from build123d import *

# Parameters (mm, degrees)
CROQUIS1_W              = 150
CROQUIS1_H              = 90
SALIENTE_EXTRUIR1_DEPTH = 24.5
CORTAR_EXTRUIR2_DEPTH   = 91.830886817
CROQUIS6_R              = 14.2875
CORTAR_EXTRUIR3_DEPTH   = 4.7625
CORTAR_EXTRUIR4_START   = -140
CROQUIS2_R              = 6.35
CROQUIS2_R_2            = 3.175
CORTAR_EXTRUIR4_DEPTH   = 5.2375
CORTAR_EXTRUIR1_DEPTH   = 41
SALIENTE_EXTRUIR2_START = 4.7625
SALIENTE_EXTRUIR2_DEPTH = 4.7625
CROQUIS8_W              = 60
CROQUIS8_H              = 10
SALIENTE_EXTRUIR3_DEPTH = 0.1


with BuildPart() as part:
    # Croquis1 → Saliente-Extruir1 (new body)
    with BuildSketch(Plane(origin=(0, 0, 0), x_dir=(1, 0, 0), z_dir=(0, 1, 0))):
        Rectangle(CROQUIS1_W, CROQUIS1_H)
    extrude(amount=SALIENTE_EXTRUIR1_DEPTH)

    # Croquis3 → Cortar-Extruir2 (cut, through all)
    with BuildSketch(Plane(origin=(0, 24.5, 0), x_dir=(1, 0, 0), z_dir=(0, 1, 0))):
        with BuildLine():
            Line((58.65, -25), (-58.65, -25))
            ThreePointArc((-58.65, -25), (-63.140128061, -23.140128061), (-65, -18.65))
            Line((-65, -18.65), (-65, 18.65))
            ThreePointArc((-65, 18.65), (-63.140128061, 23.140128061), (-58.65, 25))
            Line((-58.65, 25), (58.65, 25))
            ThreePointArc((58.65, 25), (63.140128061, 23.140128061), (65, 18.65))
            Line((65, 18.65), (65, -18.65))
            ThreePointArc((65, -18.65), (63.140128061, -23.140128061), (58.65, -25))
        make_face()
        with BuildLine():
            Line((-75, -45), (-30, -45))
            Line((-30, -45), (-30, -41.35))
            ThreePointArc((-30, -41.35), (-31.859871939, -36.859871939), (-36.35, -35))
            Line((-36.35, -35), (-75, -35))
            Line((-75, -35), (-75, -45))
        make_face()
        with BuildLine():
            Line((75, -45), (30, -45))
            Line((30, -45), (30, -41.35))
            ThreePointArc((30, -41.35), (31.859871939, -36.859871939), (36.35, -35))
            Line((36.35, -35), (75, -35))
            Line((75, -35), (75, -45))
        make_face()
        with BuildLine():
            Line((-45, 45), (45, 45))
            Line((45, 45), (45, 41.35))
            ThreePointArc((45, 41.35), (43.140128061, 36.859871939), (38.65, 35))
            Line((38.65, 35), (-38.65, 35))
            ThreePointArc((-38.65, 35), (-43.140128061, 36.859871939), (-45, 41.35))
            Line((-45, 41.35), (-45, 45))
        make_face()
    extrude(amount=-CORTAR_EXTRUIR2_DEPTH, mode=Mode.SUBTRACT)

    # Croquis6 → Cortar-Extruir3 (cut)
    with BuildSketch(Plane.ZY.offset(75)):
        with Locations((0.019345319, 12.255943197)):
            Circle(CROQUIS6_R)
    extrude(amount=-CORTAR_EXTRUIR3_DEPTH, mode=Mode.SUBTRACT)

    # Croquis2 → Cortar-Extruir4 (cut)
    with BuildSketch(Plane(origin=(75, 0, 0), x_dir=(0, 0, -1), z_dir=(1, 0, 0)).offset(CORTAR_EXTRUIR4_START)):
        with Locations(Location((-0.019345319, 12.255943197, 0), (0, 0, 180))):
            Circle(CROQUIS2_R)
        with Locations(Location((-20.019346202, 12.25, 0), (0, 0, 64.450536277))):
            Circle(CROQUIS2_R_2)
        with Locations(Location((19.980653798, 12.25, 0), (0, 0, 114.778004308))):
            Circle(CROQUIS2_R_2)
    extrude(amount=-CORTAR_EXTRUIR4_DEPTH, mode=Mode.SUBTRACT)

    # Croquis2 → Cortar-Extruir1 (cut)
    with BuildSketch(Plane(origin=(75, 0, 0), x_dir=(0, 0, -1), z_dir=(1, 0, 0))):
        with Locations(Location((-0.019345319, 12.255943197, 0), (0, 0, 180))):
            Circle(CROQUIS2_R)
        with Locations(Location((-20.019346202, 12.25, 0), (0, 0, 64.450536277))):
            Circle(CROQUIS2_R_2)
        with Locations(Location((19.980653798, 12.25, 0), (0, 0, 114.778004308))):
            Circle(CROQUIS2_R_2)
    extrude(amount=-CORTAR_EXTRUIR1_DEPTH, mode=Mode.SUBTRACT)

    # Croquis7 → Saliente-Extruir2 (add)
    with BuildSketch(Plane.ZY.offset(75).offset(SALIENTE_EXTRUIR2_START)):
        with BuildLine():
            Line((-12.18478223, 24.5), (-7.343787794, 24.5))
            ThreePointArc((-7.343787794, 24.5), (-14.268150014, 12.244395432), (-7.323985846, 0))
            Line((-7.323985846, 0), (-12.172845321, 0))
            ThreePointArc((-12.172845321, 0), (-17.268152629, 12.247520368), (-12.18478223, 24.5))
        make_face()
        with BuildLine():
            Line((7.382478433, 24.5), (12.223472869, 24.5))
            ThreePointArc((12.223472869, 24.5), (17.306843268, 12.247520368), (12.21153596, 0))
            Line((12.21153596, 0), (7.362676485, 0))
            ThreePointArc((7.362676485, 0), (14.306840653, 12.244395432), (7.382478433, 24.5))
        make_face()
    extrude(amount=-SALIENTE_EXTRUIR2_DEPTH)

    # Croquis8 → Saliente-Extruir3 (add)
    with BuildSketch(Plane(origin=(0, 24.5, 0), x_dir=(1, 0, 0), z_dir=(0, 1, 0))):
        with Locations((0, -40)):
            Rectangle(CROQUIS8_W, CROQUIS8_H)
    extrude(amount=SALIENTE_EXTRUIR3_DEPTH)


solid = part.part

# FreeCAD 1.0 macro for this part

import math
import FreeCAD as App
import Part
import Sketcher
from FreeCAD import Vector
Q = App.Units.Quantity

doc = App.newDocument("Part")
body = doc.addObject("PartDesign::Body", "Body")

# Sketch on XZ plane
sketch1 = doc.addObject("Sketcher::SketchObject", "Sketch")
body.addObject(sketch1)
sketch1.AttachmentSupport = (doc.XZ_Plane, [""])
sketch1.MapMode = "FlatFace"
sketch1.addGeometry(Part.LineSegment(Vector(-75, -45, 0), Vector(-75, 45, 0)), False)
sketch1.addGeometry(Part.LineSegment(Vector(-75, 45, 0), Vector(75, 45, 0)), False)
sketch1.addGeometry(Part.LineSegment(Vector(75, 45, 0), Vector(75, -45, 0)), False)
sketch1.addGeometry(Part.LineSegment(Vector(75, -45, 0), Vector(-75, -45, 0)), False)
sketch1.addConstraint(Sketcher.Constraint("Coincident", 0, 2, 1, 1))
sketch1.addConstraint(Sketcher.Constraint("Coincident", 1, 2, 2, 1))
sketch1.addConstraint(Sketcher.Constraint("Coincident", 2, 2, 3, 1))
sketch1.addConstraint(Sketcher.Constraint("Coincident", 3, 2, 0, 1))
sketch1.addConstraint(Sketcher.Constraint("Vertical", 0))
sketch1.addConstraint(Sketcher.Constraint("Horizontal", 1))
sketch1.addConstraint(Sketcher.Constraint("Vertical", 2))
sketch1.addConstraint(Sketcher.Constraint("Horizontal", 3))
sketch1.addConstraint(Sketcher.Constraint("Symmetric", 0, 2, 2, 2, -1, 1))
sketch1.addConstraint(Sketcher.Constraint("DistanceX", 1, 1, 1, 2, Q("150 mm")))
sketch1.addConstraint(Sketcher.Constraint("DistanceY", 0, 1, 0, 2, Q("90 mm")))
pad1 = doc.addObject("PartDesign::Pad", "Pad")
body.addObject(pad1)
pad1.Profile = sketch1
pad1.Length = 24.5
pad1.Reversed = True

# Sketch on XZ plane
sketch2 = doc.addObject("Sketcher::SketchObject", "Sketch001")
body.addObject(sketch2)
sketch2.AttachmentSupport = (doc.XZ_Plane, [""])
sketch2.MapMode = "FlatFace"
sketch2.AttachmentOffset = App.Placement(Vector(0, 0, -24.5), App.Rotation())
sketch2.addGeometry(Part.LineSegment(Vector(-58.6, 25, 0), Vector(58.6, 25, 0)), False)
sketch2.addGeometry(Part.ArcOfCircle(Part.Circle(Vector(58.7, 18.7, 0), Vector(0, 0, 1), 6.3), math.radians(0), math.radians(90)), False)
sketch2.addGeometry(Part.LineSegment(Vector(65, 18.6, 0), Vector(65, -18.6, 0)), False)
sketch2.addGeometry(Part.ArcOfCircle(Part.Circle(Vector(58.7, -18.7, 0), Vector(0, 0, 1), 6.3), math.radians(-90), math.radians(0)), False)
sketch2.addGeometry(Part.LineSegment(Vector(58.6, -25, 0), Vector(-58.6, -25, 0)), False)
sketch2.addGeometry(Part.ArcOfCircle(Part.Circle(Vector(-58.7, -18.7, 0), Vector(0, 0, 1), 6.3), math.radians(180), math.radians(270)), False)
sketch2.addGeometry(Part.LineSegment(Vector(-65, -18.6, 0), Vector(-65, 18.6, 0)), False)
sketch2.addGeometry(Part.ArcOfCircle(Part.Circle(Vector(-58.7, 18.7, 0), Vector(0, 0, 1), 6.3), math.radians(90), math.radians(180)), False)
sketch2.addGeometry(Part.LineSegment(Vector(-75, 45, 0), Vector(-30, 45, 0)), False)
sketch2.addGeometry(Part.LineSegment(Vector(-30, 45, 0), Vector(-30, 41.4, 0)), False)
sketch2.addGeometry(Part.ArcOfCircle(Part.Circle(Vector(-36.3, 41.3, 0), Vector(0, 0, 1), 6.3), math.radians(-90), math.radians(0)), False)
sketch2.addGeometry(Part.LineSegment(Vector(-36.4, 35, 0), Vector(-75, 35, 0)), False)
sketch2.addGeometry(Part.LineSegment(Vector(-75, 35, 0), Vector(-75, 45, 0)), False)
sketch2.addGeometry(Part.LineSegment(Vector(30, 45, 0), Vector(75, 45, 0)), False)
sketch2.addGeometry(Part.LineSegment(Vector(75, 45, 0), Vector(75, 35, 0)), False)
sketch2.addGeometry(Part.LineSegment(Vector(75, 35, 0), Vector(36.4, 35, 0)), False)
sketch2.addGeometry(Part.ArcOfCircle(Part.Circle(Vector(36.3, 41.3, 0), Vector(0, 0, 1), 6.3), math.radians(180), math.radians(270)), False)
sketch2.addGeometry(Part.LineSegment(Vector(30, 41.4, 0), Vector(30, 45, 0)), False)
sketch2.addGeometry(Part.LineSegment(Vector(45, -45, 0), Vector(-45, -45, 0)), False)
sketch2.addGeometry(Part.LineSegment(Vector(-45, -45, 0), Vector(-45, -41.4, 0)), False)
sketch2.addGeometry(Part.ArcOfCircle(Part.Circle(Vector(-38.7, -41.3, 0), Vector(0, 0, 1), 6.3), math.radians(90), math.radians(180)), False)
sketch2.addGeometry(Part.LineSegment(Vector(-38.6, -35, 0), Vector(38.6, -35, 0)), False)
sketch2.addGeometry(Part.ArcOfCircle(Part.Circle(Vector(38.7, -41.3, 0), Vector(0, 0, 1), 6.3), math.radians(0), math.radians(90)), False)
sketch2.addGeometry(Part.LineSegment(Vector(45, -41.4, 0), Vector(45, -45, 0)), False)
sketch2.addConstraint(Sketcher.Constraint("Tangent", 0, 2, 1, 2))
sketch2.addConstraint(Sketcher.Constraint("Tangent", 1, 1, 2, 1))
sketch2.addConstraint(Sketcher.Constraint("Tangent", 2, 2, 3, 2))
sketch2.addConstraint(Sketcher.Constraint("Tangent", 3, 1, 4, 1))
sketch2.addConstraint(Sketcher.Constraint("Tangent", 4, 2, 5, 2))
sketch2.addConstraint(Sketcher.Constraint("Tangent", 5, 1, 6, 1))
sketch2.addConstraint(Sketcher.Constraint("Tangent", 6, 2, 7, 2))
sketch2.addConstraint(Sketcher.Constraint("Tangent", 7, 1, 0, 1))
sketch2.addConstraint(Sketcher.Constraint("Coincident", 8, 2, 9, 1))
sketch2.addConstraint(Sketcher.Constraint("Tangent", 9, 2, 10, 2))
sketch2.addConstraint(Sketcher.Constraint("Tangent", 10, 1, 11, 1))
sketch2.addConstraint(Sketcher.Constraint("Coincident", 11, 2, 12, 1))
sketch2.addConstraint(Sketcher.Constraint("Coincident", 12, 2, 8, 1))
sketch2.addConstraint(Sketcher.Constraint("Coincident", 13, 2, 14, 1))
sketch2.addConstraint(Sketcher.Constraint("Coincident", 14, 2, 15, 1))
sketch2.addConstraint(Sketcher.Constraint("Tangent", 15, 2, 16, 2))
sketch2.addConstraint(Sketcher.Constraint("Tangent", 16, 1, 17, 1))
sketch2.addConstraint(Sketcher.Constraint("Coincident", 17, 2, 13, 1))
sketch2.addConstraint(Sketcher.Constraint("Coincident", 18, 2, 19, 1))
sketch2.addConstraint(Sketcher.Constraint("Tangent", 19, 2, 20, 2))
sketch2.addConstraint(Sketcher.Constraint("Tangent", 20, 1, 21, 1))
sketch2.addConstraint(Sketcher.Constraint("Tangent", 21, 2, 22, 2))
sketch2.addConstraint(Sketcher.Constraint("Tangent", 22, 1, 23, 1))
sketch2.addConstraint(Sketcher.Constraint("Coincident", 23, 2, 18, 1))
sketch2.addConstraint(Sketcher.Constraint("Horizontal", 0))
sketch2.addConstraint(Sketcher.Constraint("Vertical", 2))
sketch2.addConstraint(Sketcher.Constraint("Horizontal", 4))
sketch2.addConstraint(Sketcher.Constraint("Vertical", 6))
sketch2.addConstraint(Sketcher.Constraint("Horizontal", 8))
sketch2.addConstraint(Sketcher.Constraint("Vertical", 9))
sketch2.addConstraint(Sketcher.Constraint("Horizontal", 11))
sketch2.addConstraint(Sketcher.Constraint("Vertical", 12))
sketch2.addConstraint(Sketcher.Constraint("Horizontal", 13))
sketch2.addConstraint(Sketcher.Constraint("Vertical", 14))
sketch2.addConstraint(Sketcher.Constraint("Horizontal", 15))
sketch2.addConstraint(Sketcher.Constraint("Vertical", 17))
sketch2.addConstraint(Sketcher.Constraint("Horizontal", 18))
sketch2.addConstraint(Sketcher.Constraint("Vertical", 19))
sketch2.addConstraint(Sketcher.Constraint("Horizontal", 21))
sketch2.addConstraint(Sketcher.Constraint("Vertical", 23))
sketch2.addConstraint(Sketcher.Constraint("Equal", 1, 3))
sketch2.addConstraint(Sketcher.Constraint("Equal", 3, 5))
sketch2.addConstraint(Sketcher.Constraint("Equal", 5, 7))
sketch2.addConstraint(Sketcher.Constraint("Equal", 7, 10))
sketch2.addConstraint(Sketcher.Constraint("Equal", 10, 16))
sketch2.addConstraint(Sketcher.Constraint("Equal", 16, 20))
sketch2.addConstraint(Sketcher.Constraint("Equal", 20, 22))
sketch2.addConstraint(Sketcher.Constraint("Symmetric", 1, 3, 5, 3, -1, 1))
sketch2.addConstraint(Sketcher.Constraint("Symmetric", 10, 3, 16, 3, -2))
sketch2.addConstraint(Sketcher.Constraint("Symmetric", 12, 2, 13, 2, -2))
sketch2.addConstraint(Sketcher.Constraint("Equal", 17, 19))
sketch2.addConstraint(Sketcher.Constraint("DistanceX", 8, 1, 8, 2, Q("45 mm")))
sketch2.addConstraint(Sketcher.Constraint("DistanceX", 18, 2, 18, 1, Q("90 mm")))
sketch2.addConstraint(Sketcher.Constraint("DistanceY", 12, 1, 12, 2, Q("10 mm")))
sketch2.addConstraint(Sketcher.Constraint("Radius", 1, Q("6.35 mm")))
sketch2.addConstraint(Sketcher.Constraint("DistanceX", 0, 1, 0, 2, Q("117.3 mm")))
sketch2.addConstraint(Sketcher.Constraint("DistanceY", 2, 2, 2, 1, Q("37.3 mm")))
sketch2.addConstraint(Sketcher.Constraint("DistanceX", 8, 2, -1, 1, Q("30 mm")))
sketch2.addConstraint(Sketcher.Constraint("DistanceY", -1, 1, 8, 2, Q("45 mm")))
sketch2.addConstraint(Sketcher.Constraint("DistanceX", 18, 2, -1, 1, Q("45 mm")))
sketch2.addConstraint(Sketcher.Constraint("DistanceY", 18, 2, -1, 1, Q("45 mm")))
pocket1 = doc.addObject("PartDesign::Pocket", "Pocket")
body.addObject(pocket1)
pocket1.Profile = sketch2
pocket1.Type = "ThroughAll"
pocket1.Reversed = True

# Sketch on YZ plane
sketch3 = doc.addObject("Sketcher::SketchObject", "Sketch002")
body.addObject(sketch3)
sketch3.AttachmentSupport = (doc.YZ_Plane, [""])
sketch3.MapMode = "FlatFace"
sketch3.AttachmentOffset = App.Placement(Vector(0, 0, -75), App.Rotation())
sketch3.addGeometry(Part.Circle(Vector(12, 0, 0), Vector(0, 0, 1), 14), False)
sketch3.addConstraint(Sketcher.Constraint("Diameter", 0, Q("28.575 mm")))
sketch3.addConstraint(Sketcher.Constraint("DistanceX", -1, 1, 0, 3, Q("12.255943 mm")))
sketch3.addConstraint(Sketcher.Constraint("DistanceY", -1, 1, 0, 3, Q("0.019345 mm")))
pocket2 = doc.addObject("PartDesign::Pocket", "Pocket001")
body.addObject(pocket2)
pocket2.Profile = sketch3
pocket2.Length = 4.7625
pocket2.Reversed = True

# Sketch on YZ plane
sketch4 = doc.addObject("Sketcher::SketchObject", "Sketch003")
body.addObject(sketch4)
sketch4.AttachmentSupport = (doc.YZ_Plane, [""])
sketch4.MapMode = "FlatFace"
sketch4.AttachmentOffset = App.Placement(Vector(0, 0, -65), App.Rotation())
sketch4.addGeometry(Part.Circle(Vector(12.3, 0, 0), Vector(0, 0, 1), 6.3), False)
sketch4.addGeometry(Part.Circle(Vector(12.2, 20, 0), Vector(0, 0, 1), 3.2), False)
sketch4.addGeometry(Part.Circle(Vector(12.2, -20, 0), Vector(0, 0, 1), 3.2), False)
sketch4.addConstraint(Sketcher.Constraint("Equal", 1, 2))
sketch4.addConstraint(Sketcher.Constraint("Vertical", 1, 3, 2, 3))
sketch4.addConstraint(Sketcher.Constraint("Diameter", 0, Q("12.7 mm")))
sketch4.addConstraint(Sketcher.Constraint("Diameter", 1, Q("6.35 mm")))
sketch4.addConstraint(Sketcher.Constraint("DistanceY", 0, 3, 1, 3, Q("20.000001 mm")))
sketch4.addConstraint(Sketcher.Constraint("DistanceY", 2, 3, 0, 3, Q("19.999999 mm")))
sketch4.addConstraint(Sketcher.Constraint("DistanceX", -1, 1, 1, 3, Q("12.25 mm")))
sketch4.addConstraint(Sketcher.Constraint("DistanceX", -1, 1, 0, 3, Q("12.255943 mm")))
sketch4.addConstraint(Sketcher.Constraint("DistanceY", -1, 1, 0, 3, Q("0.019345 mm")))
pocket3 = doc.addObject("PartDesign::Pocket", "Pocket002")
body.addObject(pocket3)
pocket3.Profile = sketch4
pocket3.Length = 5.2375

# Sketch on YZ plane
sketch5 = doc.addObject("Sketcher::SketchObject", "Sketch004")
body.addObject(sketch5)
sketch5.AttachmentSupport = (doc.YZ_Plane, [""])
sketch5.MapMode = "FlatFace"
sketch5.AttachmentOffset = App.Placement(Vector(0, 0, 75), App.Rotation())
sketch5.addGeometry(Part.Circle(Vector(12.3, 0, 0), Vector(0, 0, 1), 6.3), False)
sketch5.addGeometry(Part.Circle(Vector(12.2, 20, 0), Vector(0, 0, 1), 3.2), False)
sketch5.addGeometry(Part.Circle(Vector(12.2, -20, 0), Vector(0, 0, 1), 3.2), False)
sketch5.addConstraint(Sketcher.Constraint("Equal", 1, 2))
sketch5.addConstraint(Sketcher.Constraint("Vertical", 1, 3, 2, 3))
sketch5.addConstraint(Sketcher.Constraint("Diameter", 0, Q("12.7 mm")))
sketch5.addConstraint(Sketcher.Constraint("Diameter", 1, Q("6.35 mm")))
sketch5.addConstraint(Sketcher.Constraint("DistanceY", 0, 3, 1, 3, Q("20.000001 mm")))
sketch5.addConstraint(Sketcher.Constraint("DistanceY", 2, 3, 0, 3, Q("19.999999 mm")))
sketch5.addConstraint(Sketcher.Constraint("DistanceX", -1, 1, 1, 3, Q("12.25 mm")))
sketch5.addConstraint(Sketcher.Constraint("DistanceX", -1, 1, 0, 3, Q("12.255943 mm")))
sketch5.addConstraint(Sketcher.Constraint("DistanceY", -1, 1, 0, 3, Q("0.019345 mm")))
pocket4 = doc.addObject("PartDesign::Pocket", "Pocket003")
body.addObject(pocket4)
pocket4.Profile = sketch5
pocket4.Length = 41

# Sketch on YZ plane
sketch6 = doc.addObject("Sketcher::SketchObject", "Sketch005")
body.addObject(sketch6)
sketch6.AttachmentSupport = (doc.YZ_Plane, [""])
sketch6.MapMode = "FlatFace"
sketch6.AttachmentOffset = App.Placement(Vector(0, 0, -79.7625), App.Rotation())
sketch6.addGeometry(Part.LineSegment(Vector(24.5, -7.3, 0), Vector(24.5, -12.2, 0)), False)
sketch6.addGeometry(Part.ArcOfCircle(Part.Circle(Vector(12.3, 0, 0), Vector(0, 0, 1), 17.3), math.radians(-135), math.radians(-45)), False)
sketch6.addGeometry(Part.LineSegment(Vector(0, -12.2, 0), Vector(0, -7.3, 0)), False)
sketch6.addGeometry(Part.ArcOfCircle(Part.Circle(Vector(12.3, 0, 0), Vector(0, 0, 1), 14.3), math.radians(-149), math.radians(-31)), False)
sketch6.addGeometry(Part.LineSegment(Vector(24.5, 12.2, 0), Vector(24.5, 7.4, 0)), False)
sketch6.addGeometry(Part.ArcOfCircle(Part.Circle(Vector(12.3, 0, 0), Vector(0, 0, 1), 14.3), math.radians(31), math.radians(149)), False)
sketch6.addGeometry(Part.LineSegment(Vector(0, 7.4, 0), Vector(0, 12.2, 0)), False)
sketch6.addGeometry(Part.ArcOfCircle(Part.Circle(Vector(12.3, 0, 0), Vector(0, 0, 1), 17.3), math.radians(45), math.radians(135)), False)
sketch6.addConstraint(Sketcher.Constraint("Coincident", 0, 2, 1, 2))
sketch6.addConstraint(Sketcher.Constraint("Coincident", 1, 1, 2, 1))
sketch6.addConstraint(Sketcher.Constraint("Coincident", 2, 2, 3, 1))
sketch6.addConstraint(Sketcher.Constraint("Coincident", 3, 2, 0, 1))
sketch6.addConstraint(Sketcher.Constraint("Coincident", 4, 2, 5, 1))
sketch6.addConstraint(Sketcher.Constraint("Coincident", 5, 2, 6, 1))
sketch6.addConstraint(Sketcher.Constraint("Coincident", 6, 2, 7, 2))
sketch6.addConstraint(Sketcher.Constraint("Coincident", 7, 1, 4, 1))
sketch6.addConstraint(Sketcher.Constraint("Vertical", 0))
sketch6.addConstraint(Sketcher.Constraint("Vertical", 2))
sketch6.addConstraint(Sketcher.Constraint("Vertical", 4))
sketch6.addConstraint(Sketcher.Constraint("Vertical", 6))
sketch6.addConstraint(Sketcher.Constraint("Coincident", 3, 3, 1, 3))
sketch6.addConstraint(Sketcher.Constraint("Coincident", 5, 3, 1, 3))
sketch6.addConstraint(Sketcher.Constraint("Coincident", 7, 3, 1, 3))
sketch6.addConstraint(Sketcher.Constraint("Equal", 3, 5))
sketch6.addConstraint(Sketcher.Constraint("Equal", 1, 7))
sketch6.addConstraint(Sketcher.Constraint("PointOnObject", 1, 1, -2))
sketch6.addConstraint(Sketcher.Constraint("PointOnObject", 5, 2, -2))
sketch6.addConstraint(Sketcher.Constraint("Vertical", 3, 2, 4, 2))
sketch6.addConstraint(Sketcher.Constraint("DistanceX", -1, 1, 0, 2, Q("24.5 mm")))
sketch6.addConstraint(Sketcher.Constraint("Radius", 1, Q("17.2875 mm")))
sketch6.addConstraint(Sketcher.Constraint("Radius", 3, Q("14.2875 mm")))
sketch6.addConstraint(Sketcher.Constraint("DistanceY", 2, 1, 2, 2, Q("4.848859 mm")))
sketch6.addConstraint(Sketcher.Constraint("DistanceY", -1, 1, 4, 2, Q("7.382478 mm")))
pad2 = doc.addObject("PartDesign::Pad", "Pad001")
body.addObject(pad2)
pad2.Profile = sketch6
pad2.Length = 4.7625

# Sketch on XZ plane
sketch7 = doc.addObject("Sketcher::SketchObject", "Sketch006")
body.addObject(sketch7)
sketch7.AttachmentSupport = (doc.XZ_Plane, [""])
sketch7.MapMode = "FlatFace"
sketch7.AttachmentOffset = App.Placement(Vector(0, 0, -24.5), App.Rotation())
sketch7.addGeometry(Part.LineSegment(Vector(-30, 35, 0), Vector(-30, 45, 0)), False)
sketch7.addGeometry(Part.LineSegment(Vector(-30, 45, 0), Vector(30, 45, 0)), False)
sketch7.addGeometry(Part.LineSegment(Vector(30, 45, 0), Vector(30, 35, 0)), False)
sketch7.addGeometry(Part.LineSegment(Vector(30, 35, 0), Vector(-30, 35, 0)), False)
sketch7.addConstraint(Sketcher.Constraint("Coincident", 0, 2, 1, 1))
sketch7.addConstraint(Sketcher.Constraint("Coincident", 1, 2, 2, 1))
sketch7.addConstraint(Sketcher.Constraint("Coincident", 2, 2, 3, 1))
sketch7.addConstraint(Sketcher.Constraint("Coincident", 3, 2, 0, 1))
sketch7.addConstraint(Sketcher.Constraint("Vertical", 0))
sketch7.addConstraint(Sketcher.Constraint("Horizontal", 1))
sketch7.addConstraint(Sketcher.Constraint("Vertical", 2))
sketch7.addConstraint(Sketcher.Constraint("Horizontal", 3))
sketch7.addConstraint(Sketcher.Constraint("DistanceX", 1, 1, 1, 2, Q("60 mm")))
sketch7.addConstraint(Sketcher.Constraint("DistanceY", 0, 1, 0, 2, Q("10 mm")))
sketch7.addConstraint(Sketcher.Constraint("DistanceX", 0, 2, -1, 1, Q("30 mm")))
sketch7.addConstraint(Sketcher.Constraint("DistanceY", -1, 1, 0, 2, Q("45 mm")))
pad3 = doc.addObject("PartDesign::Pad", "Pad002")
body.addObject(pad3)
pad3.Profile = sketch7
pad3.Length = 0.1
pad3.Reversed = True

doc.recompute()
